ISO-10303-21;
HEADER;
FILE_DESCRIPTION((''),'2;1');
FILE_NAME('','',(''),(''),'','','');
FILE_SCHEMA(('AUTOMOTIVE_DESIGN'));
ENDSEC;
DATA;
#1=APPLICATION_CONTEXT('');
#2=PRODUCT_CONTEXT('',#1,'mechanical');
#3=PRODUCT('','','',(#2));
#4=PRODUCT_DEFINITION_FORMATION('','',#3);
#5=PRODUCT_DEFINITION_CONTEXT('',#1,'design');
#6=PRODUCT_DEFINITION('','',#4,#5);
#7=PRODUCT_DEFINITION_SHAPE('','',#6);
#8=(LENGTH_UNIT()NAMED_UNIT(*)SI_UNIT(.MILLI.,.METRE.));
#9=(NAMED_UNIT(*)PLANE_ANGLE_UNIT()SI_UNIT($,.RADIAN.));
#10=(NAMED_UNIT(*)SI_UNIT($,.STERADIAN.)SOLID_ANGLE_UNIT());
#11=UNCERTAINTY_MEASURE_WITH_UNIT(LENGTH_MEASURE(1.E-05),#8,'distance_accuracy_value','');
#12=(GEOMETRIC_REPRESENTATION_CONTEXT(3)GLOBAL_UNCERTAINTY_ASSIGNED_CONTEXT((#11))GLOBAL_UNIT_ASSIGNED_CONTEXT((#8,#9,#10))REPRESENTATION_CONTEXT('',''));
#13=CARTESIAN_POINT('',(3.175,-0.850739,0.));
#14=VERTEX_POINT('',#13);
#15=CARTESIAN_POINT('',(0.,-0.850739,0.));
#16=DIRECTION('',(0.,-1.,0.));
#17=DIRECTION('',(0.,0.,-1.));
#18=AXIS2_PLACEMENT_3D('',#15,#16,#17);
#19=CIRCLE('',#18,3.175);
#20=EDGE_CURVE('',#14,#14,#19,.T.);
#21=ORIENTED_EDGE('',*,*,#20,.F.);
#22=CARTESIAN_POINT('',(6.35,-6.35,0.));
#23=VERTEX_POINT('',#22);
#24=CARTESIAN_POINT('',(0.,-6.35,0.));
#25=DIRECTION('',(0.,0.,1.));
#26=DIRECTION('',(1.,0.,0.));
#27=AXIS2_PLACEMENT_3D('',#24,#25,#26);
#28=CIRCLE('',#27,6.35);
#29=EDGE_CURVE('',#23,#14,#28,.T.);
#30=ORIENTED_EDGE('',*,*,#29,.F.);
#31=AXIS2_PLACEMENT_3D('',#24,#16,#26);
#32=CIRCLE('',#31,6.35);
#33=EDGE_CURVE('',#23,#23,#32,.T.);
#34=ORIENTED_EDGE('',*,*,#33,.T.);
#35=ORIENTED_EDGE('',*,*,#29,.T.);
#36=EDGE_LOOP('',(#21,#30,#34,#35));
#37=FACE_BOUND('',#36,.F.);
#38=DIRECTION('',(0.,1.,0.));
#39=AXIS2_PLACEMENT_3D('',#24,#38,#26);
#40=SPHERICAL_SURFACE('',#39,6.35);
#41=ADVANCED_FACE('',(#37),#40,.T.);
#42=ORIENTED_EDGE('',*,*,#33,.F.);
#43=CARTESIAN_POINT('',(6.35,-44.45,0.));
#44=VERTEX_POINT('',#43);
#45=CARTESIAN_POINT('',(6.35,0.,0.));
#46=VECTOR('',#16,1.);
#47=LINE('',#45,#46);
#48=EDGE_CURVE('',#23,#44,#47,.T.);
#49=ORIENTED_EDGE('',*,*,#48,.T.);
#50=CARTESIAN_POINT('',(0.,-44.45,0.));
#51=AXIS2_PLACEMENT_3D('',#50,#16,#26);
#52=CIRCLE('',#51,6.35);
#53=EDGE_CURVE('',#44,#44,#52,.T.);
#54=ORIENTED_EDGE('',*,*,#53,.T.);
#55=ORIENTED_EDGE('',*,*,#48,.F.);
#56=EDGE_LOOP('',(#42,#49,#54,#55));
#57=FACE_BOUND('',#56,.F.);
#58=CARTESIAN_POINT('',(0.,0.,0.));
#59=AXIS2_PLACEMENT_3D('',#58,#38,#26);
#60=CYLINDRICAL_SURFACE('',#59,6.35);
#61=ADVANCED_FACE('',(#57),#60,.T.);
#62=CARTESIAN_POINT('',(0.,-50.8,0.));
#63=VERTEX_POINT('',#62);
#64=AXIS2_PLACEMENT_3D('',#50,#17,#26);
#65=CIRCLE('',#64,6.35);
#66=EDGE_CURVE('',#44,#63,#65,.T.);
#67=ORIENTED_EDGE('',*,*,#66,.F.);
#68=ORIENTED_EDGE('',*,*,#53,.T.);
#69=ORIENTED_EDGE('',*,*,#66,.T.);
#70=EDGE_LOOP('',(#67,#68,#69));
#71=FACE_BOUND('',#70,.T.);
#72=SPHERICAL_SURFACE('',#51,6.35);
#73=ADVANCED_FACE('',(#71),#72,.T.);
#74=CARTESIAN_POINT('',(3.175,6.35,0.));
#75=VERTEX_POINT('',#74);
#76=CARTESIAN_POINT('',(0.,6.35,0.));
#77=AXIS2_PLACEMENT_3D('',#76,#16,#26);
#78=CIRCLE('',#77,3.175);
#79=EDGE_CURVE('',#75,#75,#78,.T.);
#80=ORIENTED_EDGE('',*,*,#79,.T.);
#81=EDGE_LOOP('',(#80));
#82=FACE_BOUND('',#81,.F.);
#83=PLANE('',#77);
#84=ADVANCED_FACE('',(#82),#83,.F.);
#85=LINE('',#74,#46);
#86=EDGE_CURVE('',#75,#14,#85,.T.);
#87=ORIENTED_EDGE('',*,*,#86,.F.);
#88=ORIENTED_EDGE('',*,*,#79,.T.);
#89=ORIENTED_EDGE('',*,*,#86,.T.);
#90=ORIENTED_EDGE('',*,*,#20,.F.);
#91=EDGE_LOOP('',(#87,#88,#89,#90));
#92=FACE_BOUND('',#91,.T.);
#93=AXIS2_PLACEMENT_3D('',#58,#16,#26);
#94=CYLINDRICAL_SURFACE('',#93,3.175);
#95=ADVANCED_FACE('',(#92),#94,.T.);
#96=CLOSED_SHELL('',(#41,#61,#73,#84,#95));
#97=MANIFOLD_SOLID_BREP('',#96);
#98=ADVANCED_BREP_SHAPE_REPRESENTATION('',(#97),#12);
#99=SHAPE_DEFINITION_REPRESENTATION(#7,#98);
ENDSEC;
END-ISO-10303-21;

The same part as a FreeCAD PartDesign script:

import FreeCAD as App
import Part
import Sketcher
from FreeCAD import Vector
Q = App.Units.Quantity


def edges_at(feature, points):
    """Names of the edges that pass closest to the given points."""
    edges = feature.Shape.Edges
    near = lambda p: min(range(len(edges)), key=lambda i: edges[i].distToShape(Part.Vertex(*p))[0])
    return sorted({f"Edge{near(p) + 1}" for p in points})

doc = App.newDocument("Part")
body = doc.addObject("PartDesign::Body", "Body")

# Sketch on XZ plane
sketch1 = body.newObject("Sketcher::SketchObject", "Sketch")
sketch1.AttachmentSupport = (doc.getObject("XZ_Plane"), [""])
sketch1.MapMode = "FlatFace"
sketch1.addGeometry(Part.Circle(Vector(0, 0, 0), Vector(0, 0, 1), 6.35), False)
sketch1.addConstraint(Sketcher.Constraint("Coincident", 0, 3, -1, 1))
sketch1.addConstraint(Sketcher.Constraint("Diameter", 0, Q("0.5 in")))
pad1 = body.newObject("PartDesign::Pad", "Pad")
pad1.Profile = sketch1
pad1.Length = Q("2 in")
doc.recompute()

fillet = body.newObject("PartDesign::Fillet", "Fillet")
fillet.Base = (pad1, edges_at(pad1, [(-6.35, -50.8, 0)]))
fillet.Radius = Q("0.25 in")
doc.recompute()

fillet2 = body.newObject("PartDesign::Fillet", "Fillet001")
fillet2.Base = (fillet, edges_at(fillet, [(-6.35, 0, 0)]))
fillet2.Radius = Q("0.25 in")

# Sketch on XZ plane
sketch2 = body.newObject("Sketcher::SketchObject", "Sketch001")
sketch2.AttachmentSupport = (doc.getObject("XZ_Plane"), [""])
sketch2.MapMode = "FlatFace"
sketch2.addGeometry(Part.Circle(Vector(0, 0, 0), Vector(0, 0, 1), 3.175), False)
sketch2.addConstraint(Sketcher.Constraint("Coincident", 0, 3, -1, 1))
sketch2.addConstraint(Sketcher.Constraint("Diameter", 0, Q("0.25 in")))
pad2 = body.newObject("PartDesign::Pad", "Pad001")
pad2.Profile = sketch2
pad2.Length = Q("0.5 in")
pad2.Midplane = True

doc.recompute()
